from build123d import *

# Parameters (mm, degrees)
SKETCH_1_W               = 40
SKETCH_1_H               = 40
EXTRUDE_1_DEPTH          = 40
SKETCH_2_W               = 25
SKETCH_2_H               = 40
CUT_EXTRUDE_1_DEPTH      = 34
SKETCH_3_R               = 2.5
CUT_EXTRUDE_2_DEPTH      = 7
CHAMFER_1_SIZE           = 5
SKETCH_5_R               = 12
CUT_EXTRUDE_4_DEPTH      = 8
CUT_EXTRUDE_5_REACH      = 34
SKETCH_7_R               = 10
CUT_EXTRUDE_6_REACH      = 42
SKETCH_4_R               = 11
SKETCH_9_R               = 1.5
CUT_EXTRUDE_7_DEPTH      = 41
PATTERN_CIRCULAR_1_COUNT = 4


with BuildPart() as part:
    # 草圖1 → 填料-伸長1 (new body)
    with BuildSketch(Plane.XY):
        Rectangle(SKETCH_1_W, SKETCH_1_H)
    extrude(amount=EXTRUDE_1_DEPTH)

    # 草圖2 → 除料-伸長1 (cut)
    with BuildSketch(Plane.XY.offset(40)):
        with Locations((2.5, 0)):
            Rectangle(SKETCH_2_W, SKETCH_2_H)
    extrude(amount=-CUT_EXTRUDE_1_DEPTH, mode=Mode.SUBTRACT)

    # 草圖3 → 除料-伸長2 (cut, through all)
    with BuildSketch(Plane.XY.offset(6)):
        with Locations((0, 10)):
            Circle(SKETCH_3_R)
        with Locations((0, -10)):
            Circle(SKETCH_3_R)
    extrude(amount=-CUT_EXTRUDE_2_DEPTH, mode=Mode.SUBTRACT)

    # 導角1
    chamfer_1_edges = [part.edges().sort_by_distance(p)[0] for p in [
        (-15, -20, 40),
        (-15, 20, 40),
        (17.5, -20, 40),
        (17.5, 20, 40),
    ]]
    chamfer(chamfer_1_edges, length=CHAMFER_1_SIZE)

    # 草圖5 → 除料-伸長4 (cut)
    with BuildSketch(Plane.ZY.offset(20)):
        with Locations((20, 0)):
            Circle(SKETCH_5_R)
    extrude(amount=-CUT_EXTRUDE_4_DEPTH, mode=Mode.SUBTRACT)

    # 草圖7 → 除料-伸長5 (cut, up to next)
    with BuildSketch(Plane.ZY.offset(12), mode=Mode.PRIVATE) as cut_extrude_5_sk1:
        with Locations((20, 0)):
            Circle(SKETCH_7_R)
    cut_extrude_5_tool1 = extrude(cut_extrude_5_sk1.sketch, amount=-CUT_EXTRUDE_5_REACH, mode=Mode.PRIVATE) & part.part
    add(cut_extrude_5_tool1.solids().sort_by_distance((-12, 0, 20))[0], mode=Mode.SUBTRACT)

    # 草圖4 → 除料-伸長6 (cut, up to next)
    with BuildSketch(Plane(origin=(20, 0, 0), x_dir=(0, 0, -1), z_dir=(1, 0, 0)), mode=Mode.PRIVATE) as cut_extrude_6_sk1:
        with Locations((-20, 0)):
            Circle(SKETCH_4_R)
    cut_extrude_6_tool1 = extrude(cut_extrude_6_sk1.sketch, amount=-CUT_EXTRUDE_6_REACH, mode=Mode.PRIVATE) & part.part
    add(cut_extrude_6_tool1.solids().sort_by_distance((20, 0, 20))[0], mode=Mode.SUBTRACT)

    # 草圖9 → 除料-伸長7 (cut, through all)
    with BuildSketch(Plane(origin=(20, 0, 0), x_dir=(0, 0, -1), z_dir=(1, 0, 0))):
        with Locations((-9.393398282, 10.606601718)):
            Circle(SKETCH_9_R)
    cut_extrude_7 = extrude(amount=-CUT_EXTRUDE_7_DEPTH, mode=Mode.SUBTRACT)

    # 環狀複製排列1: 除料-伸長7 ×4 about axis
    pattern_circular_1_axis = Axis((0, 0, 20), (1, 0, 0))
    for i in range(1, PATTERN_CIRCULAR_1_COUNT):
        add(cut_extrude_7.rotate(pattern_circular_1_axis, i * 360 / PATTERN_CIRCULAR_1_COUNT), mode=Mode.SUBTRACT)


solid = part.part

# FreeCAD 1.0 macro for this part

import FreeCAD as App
import Part
import Sketcher

V = App.Vector


def edges_at(feature, points):
    """Names of the edges that pass closest to the given points."""
    edges = feature.Shape.Edges
    near = lambda p: min(range(len(edges)), key=lambda i: edges[i].distToShape(Part.Vertex(*p))[0])
    return sorted({f"Edge{near(p) + 1}" for p in points})

doc = App.newDocument("Part")
body = doc.addObject("PartDesign::Body", "Body")

# Sketch on XY plane
sketch1 = body.newObject("Sketcher::SketchObject", "Sketch")
sketch1.AttachmentSupport = (doc.getObject("XY_Plane"), [""])
sketch1.MapMode = "FlatFace"
sketch1.addGeometry(Part.LineSegment(V(-20, 20, 0), V(-20, -20, 0)), False)
sketch1.addGeometry(Part.LineSegment(V(-20, -20, 0), V(20, -20, 0)), False)
sketch1.addGeometry(Part.LineSegment(V(20, -20, 0), V(20, 20, 0)), False)
sketch1.addGeometry(Part.LineSegment(V(20, 20, 0), V(-20, 20, 0)), False)
sketch1.addConstraint(Sketcher.Constraint("Coincident", 0, 2, 1, 1))
sketch1.addConstraint(Sketcher.Constraint("Coincident", 1, 2, 2, 1))
sketch1.addConstraint(Sketcher.Constraint("Coincident", 2, 2, 3, 1))
sketch1.addConstraint(Sketcher.Constraint("Coincident", 3, 2, 0, 1))
sketch1.addConstraint(Sketcher.Constraint("Vertical", 0))
sketch1.addConstraint(Sketcher.Constraint("Horizontal", 1))
sketch1.addConstraint(Sketcher.Constraint("Vertical", 2))
sketch1.addConstraint(Sketcher.Constraint("Horizontal", 3))
sketch1.addConstraint(Sketcher.Constraint("Symmetric", 0, 2, 2, 2, -1, 1))
sketch1.addConstraint(Sketcher.Constraint("Equal", 3, 0))
sketch1.addConstraint(Sketcher.Constraint("DistanceX", 1, 1, 1, 2, 40.0))
pad1 = body.newObject("PartDesign::Pad", "Pad")
pad1.Profile = sketch1
pad1.Length = 40

# Sketch on XY plane
sketch2 = body.newObject("Sketcher::SketchObject", "Sketch001")
sketch2.AttachmentSupport = (doc.getObject("XY_Plane"), [""])
sketch2.MapMode = "FlatFace"
sketch2.AttachmentOffset = App.Placement(V(0, 0, 40), App.Rotation())
sketch2.addGeometry(Part.LineSegment(V(-10, 20, 0), V(-10, -20, 0)), False)
sketch2.addGeometry(Part.LineSegment(V(-10, -20, 0), V(15, -20, 0)), False)
sketch2.addGeometry(Part.LineSegment(V(15, -20, 0), V(15, 20, 0)), False)
sketch2.addGeometry(Part.LineSegment(V(15, 20, 0), V(-10, 20, 0)), False)
sketch2.addConstraint(Sketcher.Constraint("Coincident", 0, 2, 1, 1))
sketch2.addConstraint(Sketcher.Constraint("Coincident", 1, 2, 2, 1))
sketch2.addConstraint(Sketcher.Constraint("Coincident", 2, 2, 3, 1))
sketch2.addConstraint(Sketcher.Constraint("Coincident", 3, 2, 0, 1))
sketch2.addConstraint(Sketcher.Constraint("Vertical", 0))
sketch2.addConstraint(Sketcher.Constraint("Horizontal", 1))
sketch2.addConstraint(Sketcher.Constraint("Vertical", 2))
sketch2.addConstraint(Sketcher.Constraint("Horizontal", 3))
sketch2.addConstraint(Sketcher.Constraint("DistanceX", 1, 1, 1, 2, 25.0))
sketch2.addConstraint(Sketcher.Constraint("DistanceY", 0, 2, 0, 1, 40.0))
sketch2.addConstraint(Sketcher.Constraint("DistanceX", 0, 2, -1, 1, 10.0))
sketch2.addConstraint(Sketcher.Constraint("DistanceY", 0, 2, -1, 1, 20.0))
pocket1 = body.newObject("PartDesign::Pocket", "Pocket")
pocket1.Profile = sketch2
pocket1.Length = 34

# Sketch on XY plane
sketch3 = body.newObject("Sketcher::SketchObject", "Sketch002")
sketch3.AttachmentSupport = (doc.getObject("XY_Plane"), [""])
sketch3.MapMode = "FlatFace"
sketch3.AttachmentOffset = App.Placement(V(0, 0, 6), App.Rotation())
sketch3.addGeometry(Part.Circle(V(0, 10, 0), V(0, 0, 1), 2.5), False)
sketch3.addGeometry(Part.Circle(V(0, -10, 0), V(0, 0, 1), 2.5), False)
sketch3.addConstraint(Sketcher.Constraint("Equal", 0, 1))
sketch3.addConstraint(Sketcher.Constraint("Symmetric", 0, 3, 1, 3, -1, 1))
sketch3.addConstraint(Sketcher.Constraint("PointOnObject", 0, 3, -2))
sketch3.addConstraint(Sketcher.Constraint("Diameter", 0, 5.0))
sketch3.addConstraint(Sketcher.Constraint("DistanceY", -1, 1, 0, 3, 10.0))
pocket2 = body.newObject("PartDesign::Pocket", "Pocket001")
pocket2.Profile = sketch3
pocket2.Type = "ThroughAll"
doc.recompute()

chamfer = body.newObject("PartDesign::Chamfer", "Chamfer")
chamfer.Base = (pocket2, edges_at(pocket2, [
    (-15, -20, 40),
    (-15, 20, 40),
    (17.5, -20, 40),
    (17.5, 20, 40),
]))
chamfer.Size = 5

# Sketch on YZ plane
sketch4 = body.newObject("Sketcher::SketchObject", "Sketch003")
sketch4.AttachmentSupport = (doc.getObject("YZ_Plane"), [""])
sketch4.MapMode = "FlatFace"
sketch4.AttachmentOffset = App.Placement(V(0, 0, -20), App.Rotation())
sketch4.addGeometry(Part.Circle(V(0, 20, 0), V(0, 0, 1), 12), False)
sketch4.addConstraint(Sketcher.Constraint("PointOnObject", 0, 3, -2))
sketch4.addConstraint(Sketcher.Constraint("Diameter", 0, 24.0))
sketch4.addConstraint(Sketcher.Constraint("DistanceY", -1, 1, 0, 3, 20.0))
pocket3 = body.newObject("PartDesign::Pocket", "Pocket002")
pocket3.Profile = sketch4
pocket3.Length = 8
pocket3.Reversed = True

# Sketch on YZ plane
sketch5 = body.newObject("Sketcher::SketchObject", "Sketch004")
sketch5.AttachmentSupport = (doc.getObject("YZ_Plane"), [""])
sketch5.MapMode = "FlatFace"
sketch5.AttachmentOffset = App.Placement(V(0, 0, -12), App.Rotation())
sketch5.addGeometry(Part.Circle(V(0, 20, 0), V(0, 0, 1), 10), False)
sketch5.addConstraint(Sketcher.Constraint("PointOnObject", 0, 3, -2))
sketch5.addConstraint(Sketcher.Constraint("Diameter", 0, 20.0))
sketch5.addConstraint(Sketcher.Constraint("DistanceY", -1, 1, 0, 3, 20.0))
pocket4 = body.newObject("PartDesign::Pocket", "Pocket003")
pocket4.Profile = sketch5
pocket4.Type = "UpToFirst"
pocket4.Reversed = True

# Sketch on YZ plane
sketch6 = body.newObject("Sketcher::SketchObject", "Sketch005")
sketch6.AttachmentSupport = (doc.getObject("YZ_Plane"), [""])
sketch6.MapMode = "FlatFace"
sketch6.AttachmentOffset = App.Placement(V(0, 0, 20), App.Rotation())
sketch6.addGeometry(Part.Circle(V(0, 20, 0), V(0, 0, 1), 11), False)
sketch6.addConstraint(Sketcher.Constraint("PointOnObject", 0, 3, -2))
sketch6.addConstraint(Sketcher.Constraint("Diameter", 0, 22.0))
sketch6.addConstraint(Sketcher.Constraint("DistanceY", -1, 1, 0, 3, 20.0))
pocket5 = body.newObject("PartDesign::Pocket", "Pocket004")
pocket5.Profile = sketch6
pocket5.Type = "UpToFirst"

# Sketch on YZ plane
sketch7 = body.newObject("Sketcher::SketchObject", "Sketch006")
sketch7.AttachmentSupport = (doc.getObject("YZ_Plane"), [""])
sketch7.MapMode = "FlatFace"
sketch7.AttachmentOffset = App.Placement(V(0, 0, 20), App.Rotation())
sketch7.addGeometry(Part.Circle(V(10.6, 9.4, 0), V(0, 0, 1), 1.5), False)
sketch7.addConstraint(Sketcher.Constraint("Diameter", 0, 3.0))
sketch7.addConstraint(Sketcher.Constraint("DistanceX", -1, 1, 0, 3, 10.606602))
sketch7.addConstraint(Sketcher.Constraint("DistanceY", -1, 1, 0, 3, 9.393398))
pocket6 = body.newObject("PartDesign::Pocket", "Pocket005")
pocket6.Profile = sketch7
pocket6.Type = "ThroughAll"
doc.recompute()

datumline = body.newObject("PartDesign::Line", "DatumLine")
datumline.Placement = App.Placement(V(0, 0, 20), App.Rotation(V(0, 0, 1), V(1, 0, 0)))
polarpattern = body.newObject("PartDesign::PolarPattern", "PolarPattern")
polarpattern.Originals = [pocket6]
polarpattern.Axis = (datumline, [""])
polarpattern.Angle = 360
polarpattern.Occurrences = 4
body.Tip = polarpattern

doc.recompute()
